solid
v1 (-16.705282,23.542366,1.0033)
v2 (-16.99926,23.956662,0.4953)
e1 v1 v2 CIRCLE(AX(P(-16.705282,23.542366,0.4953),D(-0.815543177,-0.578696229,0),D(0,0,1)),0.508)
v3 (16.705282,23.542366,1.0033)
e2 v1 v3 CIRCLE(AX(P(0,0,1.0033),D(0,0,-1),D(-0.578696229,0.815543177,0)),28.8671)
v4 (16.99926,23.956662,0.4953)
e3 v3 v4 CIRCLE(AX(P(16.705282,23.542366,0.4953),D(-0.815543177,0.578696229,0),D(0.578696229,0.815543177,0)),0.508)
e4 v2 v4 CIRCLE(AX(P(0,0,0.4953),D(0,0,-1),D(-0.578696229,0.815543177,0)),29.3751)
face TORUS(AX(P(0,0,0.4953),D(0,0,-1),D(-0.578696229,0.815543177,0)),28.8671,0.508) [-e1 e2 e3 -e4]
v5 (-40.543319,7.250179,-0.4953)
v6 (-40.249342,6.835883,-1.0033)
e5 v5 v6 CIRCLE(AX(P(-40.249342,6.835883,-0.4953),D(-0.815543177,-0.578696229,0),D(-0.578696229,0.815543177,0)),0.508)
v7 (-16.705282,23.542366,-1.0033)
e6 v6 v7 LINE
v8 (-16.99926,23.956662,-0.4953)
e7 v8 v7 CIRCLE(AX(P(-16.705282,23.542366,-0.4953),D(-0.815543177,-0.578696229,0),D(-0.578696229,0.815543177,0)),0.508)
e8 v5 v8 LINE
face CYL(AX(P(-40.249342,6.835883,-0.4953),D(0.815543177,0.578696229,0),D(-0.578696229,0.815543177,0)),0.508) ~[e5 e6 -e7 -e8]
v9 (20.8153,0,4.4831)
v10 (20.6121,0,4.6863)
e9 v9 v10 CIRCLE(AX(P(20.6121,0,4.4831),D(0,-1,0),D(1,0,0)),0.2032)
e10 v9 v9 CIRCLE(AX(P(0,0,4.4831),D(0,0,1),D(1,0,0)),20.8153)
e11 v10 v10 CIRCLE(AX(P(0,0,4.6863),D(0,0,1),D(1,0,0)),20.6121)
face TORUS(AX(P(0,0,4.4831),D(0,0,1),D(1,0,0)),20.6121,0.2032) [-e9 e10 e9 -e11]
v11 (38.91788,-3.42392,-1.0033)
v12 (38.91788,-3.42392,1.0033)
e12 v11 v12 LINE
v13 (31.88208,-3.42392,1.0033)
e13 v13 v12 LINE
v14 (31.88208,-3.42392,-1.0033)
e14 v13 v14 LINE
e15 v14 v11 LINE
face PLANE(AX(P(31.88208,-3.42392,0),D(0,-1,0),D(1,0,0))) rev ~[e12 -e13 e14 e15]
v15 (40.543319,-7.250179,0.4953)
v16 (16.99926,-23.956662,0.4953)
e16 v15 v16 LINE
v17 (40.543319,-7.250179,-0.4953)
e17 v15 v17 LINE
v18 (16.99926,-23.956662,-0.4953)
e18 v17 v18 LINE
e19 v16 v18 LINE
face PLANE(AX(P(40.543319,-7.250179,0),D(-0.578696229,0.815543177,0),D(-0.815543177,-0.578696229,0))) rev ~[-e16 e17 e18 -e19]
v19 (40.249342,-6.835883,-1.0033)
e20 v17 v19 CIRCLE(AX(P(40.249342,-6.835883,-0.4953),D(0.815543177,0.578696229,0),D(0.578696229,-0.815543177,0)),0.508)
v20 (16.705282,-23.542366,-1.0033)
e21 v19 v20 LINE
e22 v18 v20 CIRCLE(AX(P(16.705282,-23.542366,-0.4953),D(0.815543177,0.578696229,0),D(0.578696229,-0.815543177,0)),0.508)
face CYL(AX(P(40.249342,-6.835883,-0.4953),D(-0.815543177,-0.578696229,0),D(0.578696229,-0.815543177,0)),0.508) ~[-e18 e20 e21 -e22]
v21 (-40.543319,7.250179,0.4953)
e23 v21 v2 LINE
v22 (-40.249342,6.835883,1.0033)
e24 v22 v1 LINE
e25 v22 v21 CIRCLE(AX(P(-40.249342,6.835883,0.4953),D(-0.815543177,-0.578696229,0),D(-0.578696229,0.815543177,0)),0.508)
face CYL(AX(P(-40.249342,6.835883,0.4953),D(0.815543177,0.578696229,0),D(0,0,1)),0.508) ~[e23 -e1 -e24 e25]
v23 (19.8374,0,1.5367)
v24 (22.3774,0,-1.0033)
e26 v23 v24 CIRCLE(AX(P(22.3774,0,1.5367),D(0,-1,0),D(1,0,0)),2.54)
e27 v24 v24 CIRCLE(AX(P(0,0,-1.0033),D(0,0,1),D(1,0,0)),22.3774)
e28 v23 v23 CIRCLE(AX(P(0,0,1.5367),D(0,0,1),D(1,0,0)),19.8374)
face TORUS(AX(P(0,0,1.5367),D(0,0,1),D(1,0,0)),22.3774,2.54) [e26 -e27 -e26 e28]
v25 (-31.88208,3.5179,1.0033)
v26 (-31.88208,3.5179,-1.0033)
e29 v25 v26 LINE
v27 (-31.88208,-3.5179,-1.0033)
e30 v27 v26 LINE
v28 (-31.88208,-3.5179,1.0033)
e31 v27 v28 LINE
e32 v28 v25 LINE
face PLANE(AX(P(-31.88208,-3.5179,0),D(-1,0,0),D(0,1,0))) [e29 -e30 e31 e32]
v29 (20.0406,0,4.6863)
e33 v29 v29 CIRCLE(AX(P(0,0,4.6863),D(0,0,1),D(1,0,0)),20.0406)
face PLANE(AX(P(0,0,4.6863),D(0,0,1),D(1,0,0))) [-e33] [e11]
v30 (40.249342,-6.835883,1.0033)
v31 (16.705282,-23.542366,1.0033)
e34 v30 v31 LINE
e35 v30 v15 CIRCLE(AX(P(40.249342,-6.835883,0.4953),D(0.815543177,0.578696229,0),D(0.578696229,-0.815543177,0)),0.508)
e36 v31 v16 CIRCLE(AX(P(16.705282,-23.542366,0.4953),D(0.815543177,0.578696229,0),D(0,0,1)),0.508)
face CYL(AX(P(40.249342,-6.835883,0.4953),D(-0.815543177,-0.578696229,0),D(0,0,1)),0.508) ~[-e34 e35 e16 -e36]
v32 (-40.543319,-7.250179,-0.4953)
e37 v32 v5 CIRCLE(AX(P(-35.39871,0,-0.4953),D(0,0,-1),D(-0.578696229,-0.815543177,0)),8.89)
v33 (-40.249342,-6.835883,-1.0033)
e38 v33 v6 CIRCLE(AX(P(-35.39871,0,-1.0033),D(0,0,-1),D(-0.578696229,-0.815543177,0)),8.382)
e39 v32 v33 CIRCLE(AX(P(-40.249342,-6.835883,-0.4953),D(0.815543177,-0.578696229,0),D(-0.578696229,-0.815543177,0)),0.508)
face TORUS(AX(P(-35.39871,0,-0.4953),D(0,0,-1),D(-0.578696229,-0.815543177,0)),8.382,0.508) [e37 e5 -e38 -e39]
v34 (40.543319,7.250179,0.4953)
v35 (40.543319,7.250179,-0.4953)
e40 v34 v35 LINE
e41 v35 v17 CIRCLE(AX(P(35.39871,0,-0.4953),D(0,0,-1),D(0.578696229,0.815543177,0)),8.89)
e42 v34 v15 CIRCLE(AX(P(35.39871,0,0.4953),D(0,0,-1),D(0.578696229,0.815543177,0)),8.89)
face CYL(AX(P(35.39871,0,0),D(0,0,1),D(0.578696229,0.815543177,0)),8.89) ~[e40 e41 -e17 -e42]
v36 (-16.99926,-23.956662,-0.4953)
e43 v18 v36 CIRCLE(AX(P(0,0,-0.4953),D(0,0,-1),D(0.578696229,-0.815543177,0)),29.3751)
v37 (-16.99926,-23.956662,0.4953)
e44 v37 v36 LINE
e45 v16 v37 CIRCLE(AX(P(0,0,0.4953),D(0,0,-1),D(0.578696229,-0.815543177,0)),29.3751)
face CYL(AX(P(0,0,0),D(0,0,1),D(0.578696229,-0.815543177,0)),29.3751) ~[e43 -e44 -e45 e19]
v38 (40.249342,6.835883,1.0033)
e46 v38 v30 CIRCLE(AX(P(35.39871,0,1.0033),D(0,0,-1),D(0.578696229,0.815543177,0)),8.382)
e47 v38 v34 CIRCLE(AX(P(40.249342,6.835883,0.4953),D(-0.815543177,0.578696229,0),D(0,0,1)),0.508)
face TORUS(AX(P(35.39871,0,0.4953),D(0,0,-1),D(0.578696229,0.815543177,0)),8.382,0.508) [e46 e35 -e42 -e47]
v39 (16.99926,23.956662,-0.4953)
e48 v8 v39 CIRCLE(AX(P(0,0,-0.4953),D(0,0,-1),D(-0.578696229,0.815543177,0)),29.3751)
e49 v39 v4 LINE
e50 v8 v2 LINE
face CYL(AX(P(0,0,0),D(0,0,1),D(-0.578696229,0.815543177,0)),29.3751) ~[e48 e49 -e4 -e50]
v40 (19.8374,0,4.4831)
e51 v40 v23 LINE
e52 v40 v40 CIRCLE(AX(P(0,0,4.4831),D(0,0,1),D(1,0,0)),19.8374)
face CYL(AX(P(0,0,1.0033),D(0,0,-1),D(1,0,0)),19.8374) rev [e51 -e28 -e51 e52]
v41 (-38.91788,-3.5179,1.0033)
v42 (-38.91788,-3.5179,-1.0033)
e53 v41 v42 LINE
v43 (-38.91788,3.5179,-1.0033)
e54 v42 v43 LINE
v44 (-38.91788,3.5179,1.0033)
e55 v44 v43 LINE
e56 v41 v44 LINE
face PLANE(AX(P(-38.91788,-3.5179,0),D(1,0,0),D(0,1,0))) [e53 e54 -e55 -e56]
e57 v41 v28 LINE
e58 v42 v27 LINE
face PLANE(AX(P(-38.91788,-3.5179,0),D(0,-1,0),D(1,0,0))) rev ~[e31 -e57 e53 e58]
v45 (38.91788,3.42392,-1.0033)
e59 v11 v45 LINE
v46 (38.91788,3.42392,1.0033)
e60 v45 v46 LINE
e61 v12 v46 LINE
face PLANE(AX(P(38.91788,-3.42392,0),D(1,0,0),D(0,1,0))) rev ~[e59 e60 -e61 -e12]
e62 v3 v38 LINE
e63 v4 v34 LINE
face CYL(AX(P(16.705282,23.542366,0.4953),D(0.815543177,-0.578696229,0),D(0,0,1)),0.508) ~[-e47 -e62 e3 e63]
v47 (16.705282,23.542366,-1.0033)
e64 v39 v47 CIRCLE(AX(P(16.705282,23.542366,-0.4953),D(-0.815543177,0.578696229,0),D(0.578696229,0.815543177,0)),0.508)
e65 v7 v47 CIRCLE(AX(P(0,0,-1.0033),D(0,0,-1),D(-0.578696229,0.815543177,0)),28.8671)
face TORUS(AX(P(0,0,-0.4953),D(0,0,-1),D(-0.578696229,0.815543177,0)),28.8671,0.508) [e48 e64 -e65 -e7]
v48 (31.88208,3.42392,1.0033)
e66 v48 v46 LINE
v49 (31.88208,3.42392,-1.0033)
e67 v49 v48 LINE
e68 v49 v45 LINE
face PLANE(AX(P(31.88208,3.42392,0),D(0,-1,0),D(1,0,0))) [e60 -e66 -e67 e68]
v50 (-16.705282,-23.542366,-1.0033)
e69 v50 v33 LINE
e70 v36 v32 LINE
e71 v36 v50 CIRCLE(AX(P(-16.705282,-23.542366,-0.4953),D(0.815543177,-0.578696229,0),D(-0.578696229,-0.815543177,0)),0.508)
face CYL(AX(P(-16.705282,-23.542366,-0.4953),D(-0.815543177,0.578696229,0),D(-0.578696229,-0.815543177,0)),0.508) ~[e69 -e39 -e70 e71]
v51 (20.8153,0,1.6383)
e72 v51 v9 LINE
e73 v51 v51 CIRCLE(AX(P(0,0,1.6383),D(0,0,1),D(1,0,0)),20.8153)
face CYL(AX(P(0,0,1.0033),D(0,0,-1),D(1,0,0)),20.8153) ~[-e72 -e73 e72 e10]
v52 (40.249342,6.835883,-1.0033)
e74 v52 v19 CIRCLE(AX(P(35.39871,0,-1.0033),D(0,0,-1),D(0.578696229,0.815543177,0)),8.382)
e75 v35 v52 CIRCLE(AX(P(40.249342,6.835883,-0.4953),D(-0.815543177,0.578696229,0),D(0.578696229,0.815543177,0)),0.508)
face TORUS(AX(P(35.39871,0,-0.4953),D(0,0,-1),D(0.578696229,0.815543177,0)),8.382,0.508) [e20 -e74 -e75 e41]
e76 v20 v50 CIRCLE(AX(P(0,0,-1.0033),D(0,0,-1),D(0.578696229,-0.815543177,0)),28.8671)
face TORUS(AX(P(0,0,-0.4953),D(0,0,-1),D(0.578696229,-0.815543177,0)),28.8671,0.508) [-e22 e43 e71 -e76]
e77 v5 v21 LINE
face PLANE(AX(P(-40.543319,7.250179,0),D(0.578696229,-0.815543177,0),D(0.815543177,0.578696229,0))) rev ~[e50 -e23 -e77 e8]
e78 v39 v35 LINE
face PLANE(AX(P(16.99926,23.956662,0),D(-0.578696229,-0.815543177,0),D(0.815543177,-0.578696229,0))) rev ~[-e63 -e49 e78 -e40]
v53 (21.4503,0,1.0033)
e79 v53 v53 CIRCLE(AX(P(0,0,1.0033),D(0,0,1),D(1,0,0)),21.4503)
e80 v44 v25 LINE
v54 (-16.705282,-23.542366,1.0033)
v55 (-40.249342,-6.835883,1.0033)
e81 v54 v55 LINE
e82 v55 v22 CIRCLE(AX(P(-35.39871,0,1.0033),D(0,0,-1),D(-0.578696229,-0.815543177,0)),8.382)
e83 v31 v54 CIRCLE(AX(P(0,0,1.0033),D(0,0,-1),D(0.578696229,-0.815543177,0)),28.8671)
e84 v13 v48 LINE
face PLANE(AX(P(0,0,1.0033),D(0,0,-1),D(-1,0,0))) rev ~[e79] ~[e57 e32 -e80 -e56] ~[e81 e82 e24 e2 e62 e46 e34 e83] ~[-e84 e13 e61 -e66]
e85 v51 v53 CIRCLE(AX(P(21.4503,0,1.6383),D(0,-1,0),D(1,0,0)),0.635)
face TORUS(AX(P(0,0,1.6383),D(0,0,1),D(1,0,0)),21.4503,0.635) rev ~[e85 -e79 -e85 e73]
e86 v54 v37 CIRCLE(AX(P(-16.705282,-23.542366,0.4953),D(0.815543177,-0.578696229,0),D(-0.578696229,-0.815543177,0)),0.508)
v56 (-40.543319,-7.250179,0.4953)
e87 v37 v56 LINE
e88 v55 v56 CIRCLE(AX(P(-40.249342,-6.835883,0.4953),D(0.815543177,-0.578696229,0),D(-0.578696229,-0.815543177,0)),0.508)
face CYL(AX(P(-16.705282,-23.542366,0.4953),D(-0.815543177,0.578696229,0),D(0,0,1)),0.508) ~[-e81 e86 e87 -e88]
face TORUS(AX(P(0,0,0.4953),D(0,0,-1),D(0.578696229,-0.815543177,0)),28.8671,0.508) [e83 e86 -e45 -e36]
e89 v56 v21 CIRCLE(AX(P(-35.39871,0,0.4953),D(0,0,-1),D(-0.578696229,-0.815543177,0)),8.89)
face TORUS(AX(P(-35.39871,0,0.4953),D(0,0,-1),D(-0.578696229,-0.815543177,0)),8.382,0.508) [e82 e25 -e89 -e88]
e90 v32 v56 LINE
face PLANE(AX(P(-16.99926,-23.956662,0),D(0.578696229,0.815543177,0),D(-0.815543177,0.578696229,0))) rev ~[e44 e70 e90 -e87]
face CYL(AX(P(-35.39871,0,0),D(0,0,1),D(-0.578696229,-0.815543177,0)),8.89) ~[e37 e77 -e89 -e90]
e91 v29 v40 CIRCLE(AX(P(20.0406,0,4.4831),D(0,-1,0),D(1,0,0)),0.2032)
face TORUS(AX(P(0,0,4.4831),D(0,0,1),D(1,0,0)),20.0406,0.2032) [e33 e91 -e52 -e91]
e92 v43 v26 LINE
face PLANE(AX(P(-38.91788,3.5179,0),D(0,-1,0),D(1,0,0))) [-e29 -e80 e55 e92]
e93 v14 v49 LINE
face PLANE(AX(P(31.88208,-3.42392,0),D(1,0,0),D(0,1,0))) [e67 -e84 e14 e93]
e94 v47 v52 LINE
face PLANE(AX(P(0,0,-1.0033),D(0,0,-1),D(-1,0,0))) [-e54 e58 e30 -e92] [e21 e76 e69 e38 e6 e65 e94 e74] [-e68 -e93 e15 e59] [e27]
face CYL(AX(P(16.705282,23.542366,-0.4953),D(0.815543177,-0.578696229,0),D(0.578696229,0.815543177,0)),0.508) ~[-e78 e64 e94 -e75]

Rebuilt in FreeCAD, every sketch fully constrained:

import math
import FreeCAD as App
import Part
import Sketcher
Q = App.Units.Quantity


def edges_at(feature, points):
    """Names of the edges that pass closest to the given points."""
    edges = feature.Shape.Edges
    near = lambda p: min(range(len(edges)), key=lambda i: edges[i].distToShape(Part.Vertex(*p))[0])
    return sorted({f"Edge{near(p) + 1}" for p in points})

doc = App.newDocument("Part")
body = doc.addObject("PartDesign::Body", "Body")

# Sketch on XY plane
sketch1 = doc.addObject("Sketcher::SketchObject", "Sketch")
body.addObject(sketch1)
sketch1.AttachmentSupport = (doc.XY_Plane, [""])
sketch1.MapMode = "FlatFace"
sketch1.addGeometry(Part.LineSegment(App.Vector(41, 7, 0), App.Vector(17, 24, 0)), False)
sketch1.addGeometry(Part.ArcOfCircle(Part.Circle(App.Vector(0, 0, 0), App.Vector(0, 0, 1), 29), math.radians(55), math.radians(125)), False)
sketch1.addGeometry(Part.LineSegment(App.Vector(-17, 24, 0), App.Vector(-41, 7, 0)), False)
sketch1.addGeometry(Part.ArcOfCircle(Part.Circle(App.Vector(-35, 0, 0), App.Vector(0, 0, 1), 9), math.radians(125), math.radians(235)), False)
sketch1.addGeometry(Part.LineSegment(App.Vector(-41, -7, 0), App.Vector(-17, -24, 0)), False)
sketch1.addGeometry(Part.ArcOfCircle(Part.Circle(App.Vector(0, 0, 0), App.Vector(0, 0, 1), 29), math.radians(-125), math.radians(-55)), False)
sketch1.addGeometry(Part.LineSegment(App.Vector(17, -24, 0), App.Vector(41, -7, 0)), False)
sketch1.addGeometry(Part.ArcOfCircle(Part.Circle(App.Vector(35, 0, 0), App.Vector(0, 0, 1), 9), math.radians(-55), math.radians(55)), False)
sketch1.addGeometry(Part.LineSegment(App.Vector(32, -3, 0), App.Vector(32, 3, 0)), False)
sketch1.addGeometry(Part.LineSegment(App.Vector(32, 3, 0), App.Vector(39, 3, 0)), False)
sketch1.addGeometry(Part.LineSegment(App.Vector(39, 3, 0), App.Vector(39, -3, 0)), False)
sketch1.addGeometry(Part.LineSegment(App.Vector(39, -3, 0), App.Vector(32, -3, 0)), False)
sketch1.addGeometry(Part.Circle(App.Vector(0, 0, 0), App.Vector(0, 0, 1), 20), False)
sketch1.addGeometry(Part.LineSegment(App.Vector(-39, -4, 0), App.Vector(-39, 4, 0)), False)
sketch1.addGeometry(Part.LineSegment(App.Vector(-39, 4, 0), App.Vector(-32, 4, 0)), False)
sketch1.addGeometry(Part.LineSegment(App.Vector(-32, 4, 0), App.Vector(-32, -4, 0)), False)
sketch1.addGeometry(Part.LineSegment(App.Vector(-32, -4, 0), App.Vector(-39, -4, 0)), False)
sketch1.addConstraint(Sketcher.Constraint("Tangent", 0, 2, 1, 1))
sketch1.addConstraint(Sketcher.Constraint("Tangent", 1, 2, 2, 1))
sketch1.addConstraint(Sketcher.Constraint("Tangent", 2, 2, 3, 1))
sketch1.addConstraint(Sketcher.Constraint("Tangent", 3, 2, 4, 1))
sketch1.addConstraint(Sketcher.Constraint("Tangent", 4, 2, 5, 1))
sketch1.addConstraint(Sketcher.Constraint("Tangent", 5, 2, 6, 1))
sketch1.addConstraint(Sketcher.Constraint("Tangent", 6, 2, 7, 1))
sketch1.addConstraint(Sketcher.Constraint("Tangent", 7, 2, 0, 1))
sketch1.addConstraint(Sketcher.Constraint("Coincident", 8, 2, 9, 1))
sketch1.addConstraint(Sketcher.Constraint("Coincident", 9, 2, 10, 1))
sketch1.addConstraint(Sketcher.Constraint("Coincident", 10, 2, 11, 1))
sketch1.addConstraint(Sketcher.Constraint("Coincident", 11, 2, 8, 1))
sketch1.addConstraint(Sketcher.Constraint("Coincident", 13, 2, 14, 1))
sketch1.addConstraint(Sketcher.Constraint("Coincident", 14, 2, 15, 1))
sketch1.addConstraint(Sketcher.Constraint("Coincident", 15, 2, 16, 1))
sketch1.addConstraint(Sketcher.Constraint("Coincident", 16, 2, 13, 1))
sketch1.addConstraint(Sketcher.Constraint("Vertical", 8))
sketch1.addConstraint(Sketcher.Constraint("Horizontal", 9))
sketch1.addConstraint(Sketcher.Constraint("Vertical", 10))
sketch1.addConstraint(Sketcher.Constraint("Horizontal", 11))
sketch1.addConstraint(Sketcher.Constraint("Vertical", 13))
sketch1.addConstraint(Sketcher.Constraint("Horizontal", 14))
sketch1.addConstraint(Sketcher.Constraint("Vertical", 15))
sketch1.addConstraint(Sketcher.Constraint("Horizontal", 16))
sketch1.addConstraint(Sketcher.Constraint("Coincident", 1, 3, -1, 1))
sketch1.addConstraint(Sketcher.Constraint("Coincident", 5, 3, -1, 1))
sketch1.addConstraint(Sketcher.Constraint("Coincident", 12, 3, -1, 1))
sketch1.addConstraint(Sketcher.Constraint("Equal", 1, 5))
sketch1.addConstraint(Sketcher.Constraint("Equal", 3, 7))
sketch1.addConstraint(Sketcher.Constraint("Symmetric", 3, 3, 7, 3, -1, 1))
sketch1.addConstraint(Sketcher.Constraint("PointOnObject", 3, 3, -1))
sketch1.addConstraint(Sketcher.Constraint("Equal", 11, 14))
sketch1.addConstraint(Sketcher.Constraint("Equal", 16, 13))
sketch1.addConstraint(Sketcher.Constraint("Radius", 3, Q("0.35 in")))
sketch1.addConstraint(Sketcher.Constraint("Diameter", 12, Q("1.562 in")))
sketch1.addConstraint(Sketcher.Constraint("Radius", 1, Q("1.1565 in")))
sketch1.addConstraint(Sketcher.Constraint("DistanceX", 9, 1, 9, 2, Q("0.277 in")))
sketch1.addConstraint(Sketcher.Constraint("DistanceY", 8, 1, 8, 2, Q("0.2696 in")))
sketch1.addConstraint(Sketcher.Constraint("DistanceX", -1, 1, 8, 2, Q("1.2552 in")))
sketch1.addConstraint(Sketcher.Constraint("DistanceY", -1, 1, 8, 2, Q("0.1348 in")))
sketch1.addConstraint(Sketcher.Constraint("DistanceX", 13, 2, -1, 1, Q("1.5322 in")))
sketch1.addConstraint(Sketcher.Constraint("DistanceY", -1, 1, 13, 2, Q("0.1385 in")))
sketch1.addConstraint(Sketcher.Constraint("DistanceX", 3, 3, 7, 3, Q("2.7873 in")))
pad1 = doc.addObject("PartDesign::Pad", "Pad")
body.addObject(pad1)
pad1.Profile = sketch1
pad1.Length = Q("0.079 in")
pad1.Midplane = True

# Sketch on XY plane
sketch2 = doc.addObject("Sketcher::SketchObject", "Sketch001")
body.addObject(sketch2)
sketch2.AttachmentSupport = (doc.XY_Plane, [""])
sketch2.MapMode = "FlatFace"
sketch2.AttachmentOffset = App.Placement(App.Vector(0, 0, 0.0395 * 25.4), App.Rotation())
sketch2.addGeometry(Part.Circle(App.Vector(0, 0, 0), App.Vector(0, 0, 1), 21), False)
sketch2.addGeometry(Part.Circle(App.Vector(0, 0, 0), App.Vector(0, 0, 1), 20), False)
sketch2.addConstraint(Sketcher.Constraint("Coincident", 0, 3, -1, 1))
sketch2.addConstraint(Sketcher.Constraint("Coincident", 1, 3, -1, 1))
sketch2.addConstraint(Sketcher.Constraint("Diameter", 0, Q("1.639 in")))
sketch2.addConstraint(Sketcher.Constraint("Diameter", 1, Q("1.562 in")))
pad2 = doc.addObject("PartDesign::Pad", "Pad001")
body.addObject(pad2)
pad2.Profile = sketch2
pad2.Length = Q("0.145 in")
doc.recompute()

fillet = doc.addObject("PartDesign::Fillet", "Fillet")
body.addObject(fillet)
fillet.Base = (pad2, edges_at(pad2, [(-19.837, 0, -1.003)]))
fillet.Radius = Q("0.1 in")
doc.recompute()

fillet2 = doc.addObject("PartDesign::Fillet", "Fillet001")
body.addObject(fillet2)
fillet2.Base = (fillet, edges_at(fillet, [(-20.815, 0, 1.003)]))
fillet2.Radius = Q("0.025 in")
doc.recompute()

fillet3 = doc.addObject("PartDesign::Fillet", "Fillet002")
body.addObject(fillet3)
fillet3.Base = (fillet2, edges_at(fillet2, [
    (-44.289, 0, 1.003),
    (-28.771, 15.603, -1.003),
    (0, 29.375, -1.003),
    (-28.771, -15.603, 1.003),
    (0, -29.375, 1.003),
    (28.771, -15.603, 1.003),
    (44.289, 0, 1.003),
    (28.771, 15.603, 1.003),
    (0, 29.375, 1.003),
    (-28.771, 15.603, 1.003),
    (28.771, 15.603, -1.003),
    (44.289, 0, -1.003),
    (28.771, -15.603, -1.003),
    (0, -29.375, -1.003),
    (-28.771, -15.603, -1.003),
    (-44.289, 0, -1.003),
]))
fillet3.Radius = Q("0.02 in")
doc.recompute()

fillet4 = doc.addObject("PartDesign::Fillet", "Fillet003")
body.addObject(fillet4)
fillet4.Base = (fillet3, edges_at(fillet3, [(-20.815, 0, 4.686), (-19.837, 0, 4.686)]))
fillet4.Radius = Q("0.008 in")

doc.recompute()
